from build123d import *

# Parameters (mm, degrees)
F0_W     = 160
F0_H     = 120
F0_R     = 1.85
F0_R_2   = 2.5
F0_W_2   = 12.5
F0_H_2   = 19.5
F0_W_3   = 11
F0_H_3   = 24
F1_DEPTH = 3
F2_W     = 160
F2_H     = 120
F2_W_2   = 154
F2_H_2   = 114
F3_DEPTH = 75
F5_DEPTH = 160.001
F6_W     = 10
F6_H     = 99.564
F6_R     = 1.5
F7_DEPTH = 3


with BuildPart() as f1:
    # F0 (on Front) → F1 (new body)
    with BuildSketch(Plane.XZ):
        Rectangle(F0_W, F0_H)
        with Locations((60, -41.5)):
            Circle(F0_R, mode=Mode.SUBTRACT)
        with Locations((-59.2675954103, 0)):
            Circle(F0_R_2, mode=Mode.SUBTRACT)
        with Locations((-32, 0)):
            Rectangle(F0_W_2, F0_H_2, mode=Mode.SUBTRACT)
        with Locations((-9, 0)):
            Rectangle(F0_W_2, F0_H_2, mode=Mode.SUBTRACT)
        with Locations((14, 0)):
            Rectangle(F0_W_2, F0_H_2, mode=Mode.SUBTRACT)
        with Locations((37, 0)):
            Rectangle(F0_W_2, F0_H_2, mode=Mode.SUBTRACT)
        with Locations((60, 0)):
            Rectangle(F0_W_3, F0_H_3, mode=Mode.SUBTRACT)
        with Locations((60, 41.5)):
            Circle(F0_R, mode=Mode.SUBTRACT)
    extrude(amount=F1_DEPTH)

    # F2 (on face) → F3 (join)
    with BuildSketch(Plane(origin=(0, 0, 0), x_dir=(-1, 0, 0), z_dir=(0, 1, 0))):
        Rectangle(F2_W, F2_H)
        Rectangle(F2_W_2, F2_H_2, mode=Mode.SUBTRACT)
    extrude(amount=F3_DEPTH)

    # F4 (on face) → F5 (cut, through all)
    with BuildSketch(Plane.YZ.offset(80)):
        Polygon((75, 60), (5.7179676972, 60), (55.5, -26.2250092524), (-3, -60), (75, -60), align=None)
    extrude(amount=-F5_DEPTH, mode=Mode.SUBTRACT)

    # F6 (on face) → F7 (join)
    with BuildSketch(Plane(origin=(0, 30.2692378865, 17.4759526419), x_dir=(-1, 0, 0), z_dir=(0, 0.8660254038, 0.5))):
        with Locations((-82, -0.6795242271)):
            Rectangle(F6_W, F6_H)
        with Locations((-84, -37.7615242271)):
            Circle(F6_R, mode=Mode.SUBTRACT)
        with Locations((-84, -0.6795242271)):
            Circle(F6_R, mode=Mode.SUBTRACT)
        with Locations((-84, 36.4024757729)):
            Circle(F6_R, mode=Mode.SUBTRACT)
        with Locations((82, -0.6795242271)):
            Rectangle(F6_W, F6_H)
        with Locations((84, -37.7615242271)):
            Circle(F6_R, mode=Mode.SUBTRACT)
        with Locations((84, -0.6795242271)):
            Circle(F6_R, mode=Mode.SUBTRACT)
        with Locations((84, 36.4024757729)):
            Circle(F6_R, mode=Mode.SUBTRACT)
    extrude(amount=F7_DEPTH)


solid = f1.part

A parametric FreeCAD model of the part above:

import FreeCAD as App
import Part
import Sketcher

V = App.Vector
Q = App.Units.Quantity

doc = App.newDocument("Part")
params = doc.addObject("Spreadsheet::Sheet", "Params")
for row, (alias, value) in enumerate([
    ("sketch1_diameter", "5 mm"),
    ("sketch1_diameter2", "3.7 mm"),
    ("sketch1_width", "160 mm"),
    ("sketch1_width2", "11 mm"),
    ("sketch1_height", "120 mm"),
    ("pad1_length", "3 mm"),
    ("sketch2_width", "160 mm"),
    ("sketch2_width2", "154 mm"),
    ("sketch2_height", "120 mm"),
    ("sketch2_height2", "114 mm"),
    ("pad2_length", "75 mm"),
    ("sketch3_width", "78 mm"),
    ("sketch3_height", "120 mm"),
    ("sketch4_diameter", "3 mm"),
    ("sketch4_width", "10 mm"),
    ("pad3_length", "3 mm"),
], start=1):
    params.set(f"A{row}", alias)
    params.set(f"B{row}", "=" + value)
    params.setAlias(f"B{row}", alias)

body = doc.addObject("PartDesign::Body", "Body")

sketch1 = body.newObject("Sketcher::SketchObject", "Sketch")
sketch1.AttachmentSupport = (doc.getObject("XZ_Plane"), [""])
sketch1.MapMode = "FlatFace"
sketch1.addGeometry([
    Part.LineSegment(V(-80, 60, 0), V(-80, -60, 0)),
    Part.LineSegment(V(-80, -60, 0), V(80, -60, 0)),
    Part.LineSegment(V(80, -60, 0), V(80, 60, 0)),
    Part.LineSegment(V(80, 60, 0), V(-80, 60, 0)),
    Part.Circle(V(60, -41.5, 0), V(0, 0, 1), 1.85),
    Part.Circle(V(-59.267595, 0, 0), V(0, 0, 1), 2.5),
    Part.LineSegment(V(-25.75, -9.75, 0), V(-38.25, -9.75, 0)),
    Part.LineSegment(V(-38.25, -9.75, 0), V(-38.25, 9.75, 0)),
    Part.LineSegment(V(-38.25, 9.75, 0), V(-25.75, 9.75, 0)),
    Part.LineSegment(V(-25.75, 9.75, 0), V(-25.75, -9.75, 0)),
    Part.LineSegment(V(-2.75, -9.75, 0), V(-15.25, -9.75, 0)),
    Part.LineSegment(V(-15.25, -9.75, 0), V(-15.25, 9.75, 0)),
    Part.LineSegment(V(-15.25, 9.75, 0), V(-2.75, 9.75, 0)),
    Part.LineSegment(V(-2.75, 9.75, 0), V(-2.75, -9.75, 0)),
    Part.LineSegment(V(20.25, -9.75, 0), V(7.75, -9.75, 0)),
    Part.LineSegment(V(7.75, -9.75, 0), V(7.75, 9.75, 0)),
    Part.LineSegment(V(7.75, 9.75, 0), V(20.25, 9.75, 0)),
    Part.LineSegment(V(20.25, 9.75, 0), V(20.25, -9.75, 0)),
    Part.LineSegment(V(43.25, -9.75, 0), V(30.75, -9.75, 0)),
    Part.LineSegment(V(30.75, -9.75, 0), V(30.75, 9.75, 0)),
    Part.LineSegment(V(30.75, 9.75, 0), V(43.25, 9.75, 0)),
    Part.LineSegment(V(43.25, 9.75, 0), V(43.25, -9.75, 0)),
    Part.LineSegment(V(65.5, -12, 0), V(54.5, -12, 0)),
    Part.LineSegment(V(54.5, -12, 0), V(54.5, 12, 0)),
    Part.LineSegment(V(54.5, 12, 0), V(65.5, 12, 0)),
    Part.LineSegment(V(65.5, 12, 0), V(65.5, -12, 0)),
    Part.Circle(V(60, 41.5, 0), V(0, 0, 1), 1.85),
], False)
sketch1.addConstraint([
    Sketcher.Constraint("Coincident", 0, 2, 1, 1),
    Sketcher.Constraint("Coincident", 1, 2, 2, 1),
    Sketcher.Constraint("Coincident", 2, 2, 3, 1),
    Sketcher.Constraint("Coincident", 3, 2, 0, 1),
    Sketcher.Constraint("Coincident", 6, 2, 7, 1),
    Sketcher.Constraint("Coincident", 7, 2, 8, 1),
    Sketcher.Constraint("Coincident", 8, 2, 9, 1),
    Sketcher.Constraint("Coincident", 9, 2, 6, 1),
    Sketcher.Constraint("Coincident", 10, 2, 11, 1),
    Sketcher.Constraint("Coincident", 11, 2, 12, 1),
    Sketcher.Constraint("Coincident", 12, 2, 13, 1),
    Sketcher.Constraint("Coincident", 13, 2, 10, 1),
    Sketcher.Constraint("Coincident", 14, 2, 15, 1),
    Sketcher.Constraint("Coincident", 15, 2, 16, 1),
    Sketcher.Constraint("Coincident", 16, 2, 17, 1),
    Sketcher.Constraint("Coincident", 17, 2, 14, 1),
    Sketcher.Constraint("Coincident", 18, 2, 19, 1),
    Sketcher.Constraint("Coincident", 19, 2, 20, 1),
    Sketcher.Constraint("Coincident", 20, 2, 21, 1),
    Sketcher.Constraint("Coincident", 21, 2, 18, 1),
    Sketcher.Constraint("Coincident", 22, 2, 23, 1),
    Sketcher.Constraint("Coincident", 23, 2, 24, 1),
    Sketcher.Constraint("Coincident", 24, 2, 25, 1),
    Sketcher.Constraint("Coincident", 25, 2, 22, 1),
    Sketcher.Constraint("Vertical", 0),
    Sketcher.Constraint("Horizontal", 1),
    Sketcher.Constraint("Vertical", 2),
    Sketcher.Constraint("Horizontal", 3),
    Sketcher.Constraint("Horizontal", 6),
    Sketcher.Constraint("Vertical", 7),
    Sketcher.Constraint("Horizontal", 8),
    Sketcher.Constraint("Vertical", 9),
    Sketcher.Constraint("Horizontal", 10),
    Sketcher.Constraint("Vertical", 11),
    Sketcher.Constraint("Horizontal", 12),
    Sketcher.Constraint("Vertical", 13),
    Sketcher.Constraint("Horizontal", 14),
    Sketcher.Constraint("Vertical", 15),
    Sketcher.Constraint("Horizontal", 16),
    Sketcher.Constraint("Vertical", 17),
    Sketcher.Constraint("Horizontal", 18),
    Sketcher.Constraint("Vertical", 19),
    Sketcher.Constraint("Horizontal", 20),
    Sketcher.Constraint("Vertical", 21),
    Sketcher.Constraint("Horizontal", 22),
    Sketcher.Constraint("Vertical", 23),
    Sketcher.Constraint("Horizontal", 24),
    Sketcher.Constraint("Vertical", 25),
    Sketcher.Constraint("Equal", 4, 26),
    Sketcher.Constraint("Symmetric", 0, 2, 2, 2, -1, 1),
    Sketcher.Constraint("Symmetric", 4, 3, 26, 3, -1),
    Sketcher.Constraint("PointOnObject", 5, 3, -1),
    Sketcher.Constraint("Horizontal", 9, 2, 10, 2),
    Sketcher.Constraint("Horizontal", 8, 2, 11, 2),
    Sketcher.Constraint("Horizontal", 13, 2, 14, 2),
    Sketcher.Constraint("Horizontal", 12, 2, 15, 2),
    Sketcher.Constraint("Horizontal", 17, 2, 18, 2),
    Sketcher.Constraint("Horizontal", 16, 2, 19, 2),
    Sketcher.Constraint("Equal", 8, 10),
    Sketcher.Constraint("Equal", 12, 14),
    Sketcher.Constraint("Equal", 16, 18),
    Sketcher.Constraint("Diameter", 5, Q("5 mm")),
    Sketcher.Constraint("Diameter", 4, Q("3.7 mm")),
    Sketcher.Constraint("DistanceX", 1, 1, 1, 2, Q("160 mm")),
    Sketcher.Constraint("DistanceX", 22, 2, 22, 1, Q("11 mm")),
    Sketcher.Constraint("DistanceY", 0, 2, 0, 1, Q("120 mm")),
    Sketcher.Constraint("DistanceY", 23, 1, 23, 2, Q("24 mm")),
    Sketcher.Constraint("DistanceX", 6, 2, 6, 1, Q("12.5 mm")),
    Sketcher.Constraint("DistanceY", 7, 1, 7, 2, Q("19.5 mm")),
    Sketcher.Constraint("DistanceX", -1, 1, 4, 3, Q("60 mm")),
    Sketcher.Constraint("DistanceY", 22, 2, -1, 1, Q("12 mm")),
    Sketcher.Constraint("DistanceY", 4, 3, 26, 3, Q("83 mm")),
    Sketcher.Constraint("DistanceX", 6, 2, 10, 2, Q("23 mm")),
    Sketcher.Constraint("DistanceX", 10, 2, 14, 2, Q("23 mm")),
    Sketcher.Constraint("DistanceX", 14, 2, 18, 2, Q("23 mm")),
    Sketcher.Constraint("DistanceX", -1, 1, 22, 2, Q("54.5 mm")),
    Sketcher.Constraint("DistanceX", 6, 2, -1, 1, Q("38.25 mm")),
    Sketcher.Constraint("DistanceY", 6, 2, -1, 1, Q("9.75 mm")),
    Sketcher.Constraint("DistanceX", 5, 3, -1, 1, Q("59.267595 mm")),
])
sketch1.setExpression("Constraints[61]", "Params.sketch1_diameter")
sketch1.setExpression("Constraints[62]", "Params.sketch1_diameter2")
sketch1.setExpression("Constraints[63]", "Params.sketch1_width")
sketch1.setExpression("Constraints[64]", "Params.sketch1_width2")
sketch1.setExpression("Constraints[65]", "Params.sketch1_height")
pad1 = body.newObject("PartDesign::Pad", "Pad")
pad1.Profile = sketch1
pad1.setExpression("Length", "Params.pad1_length")

sketch2 = body.newObject("Sketcher::SketchObject", "Sketch001")
sketch2.AttachmentSupport = (doc.getObject("XZ_Plane"), [""])
sketch2.MapMode = "FlatFace"
sketch2.addGeometry([
    Part.LineSegment(V(80, 60, 0), V(80, -60, 0)),
    Part.LineSegment(V(80, -60, 0), V(-80, -60, 0)),
    Part.LineSegment(V(-80, -60, 0), V(-80, 60, 0)),
    Part.LineSegment(V(-80, 60, 0), V(80, 60, 0)),
    Part.LineSegment(V(-77, -57, 0), V(77, -57, 0)),
    Part.LineSegment(V(77, -57, 0), V(77, 57, 0)),
    Part.LineSegment(V(77, 57, 0), V(-77, 57, 0)),
    Part.LineSegment(V(-77, 57, 0), V(-77, -57, 0)),
], False)
sketch2.addConstraint([
    Sketcher.Constraint("Coincident", 0, 2, 1, 1),
    Sketcher.Constraint("Coincident", 1, 2, 2, 1),
    Sketcher.Constraint("Coincident", 2, 2, 3, 1),
    Sketcher.Constraint("Coincident", 3, 2, 0, 1),
    Sketcher.Constraint("Coincident", 4, 2, 5, 1),
    Sketcher.Constraint("Coincident", 5, 2, 6, 1),
    Sketcher.Constraint("Coincident", 6, 2, 7, 1),
    Sketcher.Constraint("Coincident", 7, 2, 4, 1),
    Sketcher.Constraint("Vertical", 0),
    Sketcher.Constraint("Horizontal", 1),
    Sketcher.Constraint("Vertical", 2),
    Sketcher.Constraint("Horizontal", 3),
    Sketcher.Constraint("Horizontal", 4),
    Sketcher.Constraint("Vertical", 5),
    Sketcher.Constraint("Horizontal", 6),
    Sketcher.Constraint("Vertical", 7),
    Sketcher.Constraint("Symmetric", 0, 2, 2, 2, -1, 1),
    Sketcher.Constraint("Symmetric", 4, 2, 6, 2, -1, 1),
    Sketcher.Constraint("DistanceX", 1, 2, 1, 1, Q("160 mm")),
    Sketcher.Constraint("DistanceX", 4, 1, 4, 2, Q("154 mm")),
    Sketcher.Constraint("DistanceY", 0, 2, 0, 1, Q("120 mm")),
    Sketcher.Constraint("DistanceY", 5, 1, 5, 2, Q("114 mm")),
])
sketch2.setExpression("Constraints[18]", "Params.sketch2_width")
sketch2.setExpression("Constraints[19]", "Params.sketch2_width2")
sketch2.setExpression("Constraints[20]", "Params.sketch2_height")
sketch2.setExpression("Constraints[21]", "Params.sketch2_height2")
pad2 = body.newObject("PartDesign::Pad", "Pad001")
pad2.Profile = sketch2
pad2.setExpression("Length", "Params.pad2_length")
pad2.Reversed = True

sketch3 = body.newObject("Sketcher::SketchObject", "Sketch002")
sketch3.AttachmentSupport = (doc.getObject("YZ_Plane"), [""])
sketch3.MapMode = "FlatFace"
sketch3.AttachmentOffset = App.Placement(V(0, 0, 80), App.Rotation())
sketch3.addGeometry([
    Part.LineSegment(V(75, 60, 0), V(5.717968, 60, 0)),
    Part.LineSegment(V(5.717968, 60, 0), V(55.5, -26.225009, 0)),
    Part.LineSegment(V(55.5, -26.225009, 0), V(-3, -60, 0)),
    Part.LineSegment(V(-3, -60, 0), V(75, -60, 0)),
    Part.LineSegment(V(75, -60, 0), V(75, 60, 0)),
], False)
sketch3.addConstraint([
    Sketcher.Constraint("Coincident", 0, 2, 1, 1),
    Sketcher.Constraint("Coincident", 1, 2, 2, 1),
    Sketcher.Constraint("Coincident", 2, 2, 3, 1),
    Sketcher.Constraint("Coincident", 3, 2, 4, 1),
    Sketcher.Constraint("Coincident", 4, 2, 0, 1),
    Sketcher.Constraint("Horizontal", 0),
    Sketcher.Constraint("Horizontal", 3),
    Sketcher.Constraint("Vertical", 4),
    Sketcher.Constraint("Perpendicular", 1, 2),
    Sketcher.Constraint("DistanceX", 3, 1, 3, 2, Q("78 mm")),
    Sketcher.Constraint("DistanceY", 4, 1, 4, 2, Q("120 mm")),
    Sketcher.Constraint("Angle", 1, Q("-60 deg")),
    Sketcher.Constraint("DistanceY", -1, 1, 0, 2, Q("60 mm")),
    Sketcher.Constraint("DistanceX", 2, 2, -1, 1, Q("3 mm")),
    Sketcher.Constraint("DistanceX", -1, 1, 1, 2, Q("55.5 mm")),
])
sketch3.setExpression("Constraints[9]", "Params.sketch3_width")
sketch3.setExpression("Constraints[10]", "Params.sketch3_height")
pocket1 = body.newObject("PartDesign::Pocket", "Pocket")
pocket1.Profile = sketch3
pocket1.Type = "ThroughAll"

sketch4 = body.newObject("Sketcher::SketchObject", "Sketch003")
sketch4.Placement = App.Placement(V(0, 30.269238, 17.475953), App.Rotation(V(-1, 0, 0), V(0, -0.5, 0.866025404), V(0, 0.866025404, 0.5), "ZXY"))
sketch4.addGeometry([
    Part.LineSegment(V(-87, 49.102476, 0), V(-87, -50.461524, 0)),
    Part.LineSegment(V(-87, -50.461524, 0), V(-77, -50.461524, 0)),
    Part.LineSegment(V(-77, -50.461524, 0), V(-77, 49.102476, 0)),
    Part.LineSegment(V(-77, 49.102476, 0), V(-87, 49.102476, 0)),
    Part.Circle(V(-84, -37.761524, 0), V(0, 0, 1), 1.5),
    Part.Circle(V(-84, -0.679524, 0), V(0, 0, 1), 1.5),
    Part.Circle(V(-84, 36.402476, 0), V(0, 0, 1), 1.5),
    Part.LineSegment(V(77, 49.102476, 0), V(77, -50.461524, 0)),
    Part.LineSegment(V(77, -50.461524, 0), V(87, -50.461524, 0)),
    Part.LineSegment(V(87, -50.461524, 0), V(87, 49.102476, 0)),
    Part.LineSegment(V(87, 49.102476, 0), V(77, 49.102476, 0)),
    Part.Circle(V(84, -37.761524, 0), V(0, 0, 1), 1.5),
    Part.Circle(V(84, -0.679524, 0), V(0, 0, 1), 1.5),
    Part.Circle(V(84, 36.402476, 0), V(0, 0, 1), 1.5),
], False)
sketch4.addConstraint([
    Sketcher.Constraint("Coincident", 0, 2, 1, 1),
    Sketcher.Constraint("Coincident", 1, 2, 2, 1),
    Sketcher.Constraint("Coincident", 2, 2, 3, 1),
    Sketcher.Constraint("Coincident", 3, 2, 0, 1),
    Sketcher.Constraint("Coincident", 7, 2, 8, 1),
    Sketcher.Constraint("Coincident", 8, 2, 9, 1),
    Sketcher.Constraint("Coincident", 9, 2, 10, 1),
    Sketcher.Constraint("Coincident", 10, 2, 7, 1),
    Sketcher.Constraint("Vertical", 0),
    Sketcher.Constraint("Horizontal", 1),
    Sketcher.Constraint("Vertical", 2),
    Sketcher.Constraint("Horizontal", 3),
    Sketcher.Constraint("Vertical", 7),
    Sketcher.Constraint("Horizontal", 8),
    Sketcher.Constraint("Vertical", 9),
    Sketcher.Constraint("Horizontal", 10),
    Sketcher.Constraint("Equal", 4, 5),
    Sketcher.Constraint("Equal", 5, 6),
    Sketcher.Constraint("Equal", 6, 11),
    Sketcher.Constraint("Equal", 11, 12),
    Sketcher.Constraint("Equal", 12, 13),
    Sketcher.Constraint("Symmetric", 4, 3, 11, 3, -2),
    Sketcher.Constraint("Symmetric", 5, 3, 12, 3, -2),
    Sketcher.Constraint("Symmetric", 6, 3, 13, 3, -2),
    Sketcher.Constraint("Symmetric", 1, 2, 7, 2, -2),
    Sketcher.Constraint("Symmetric", 3, 2, 9, 2, -2),
    Sketcher.Constraint("Vertical", 4, 3, 5, 3),
    Sketcher.Constraint("Vertical", 5, 3, 6, 3),
    Sketcher.Constraint("Diameter", 4, Q("3 mm")),
    Sketcher.Constraint("DistanceX", 1, 1, 1, 2, Q("10 mm")),
    Sketcher.Constraint("DistanceX", 4, 3, -1, 1, Q("84 mm")),
    Sketcher.Constraint("DistanceX", 0, 2, -1, 1, Q("87 mm")),
    Sketcher.Constraint("DistanceY", 0, 2, 4, 3, Q("12.7 mm")),
    Sketcher.Constraint("DistanceY", 6, 3, 2, 2, Q("12.7 mm")),
    Sketcher.Constraint("DistanceY", 0, 2, 0, 1, Q("99.564 mm")),
    Sketcher.Constraint("DistanceY", 4, 3, 5, 3, Q("37.082 mm")),
    Sketcher.Constraint("DistanceY", 4, 3, -1, 1, Q("37.761524 mm")),
])
sketch4.setExpression("Constraints[28]", "Params.sketch4_diameter")
sketch4.setExpression("Constraints[29]", "Params.sketch4_width")
pad3 = body.newObject("PartDesign::Pad", "Pad002")
pad3.Profile = sketch4
pad3.setExpression("Length", "Params.pad3_length")

doc.recompute()
